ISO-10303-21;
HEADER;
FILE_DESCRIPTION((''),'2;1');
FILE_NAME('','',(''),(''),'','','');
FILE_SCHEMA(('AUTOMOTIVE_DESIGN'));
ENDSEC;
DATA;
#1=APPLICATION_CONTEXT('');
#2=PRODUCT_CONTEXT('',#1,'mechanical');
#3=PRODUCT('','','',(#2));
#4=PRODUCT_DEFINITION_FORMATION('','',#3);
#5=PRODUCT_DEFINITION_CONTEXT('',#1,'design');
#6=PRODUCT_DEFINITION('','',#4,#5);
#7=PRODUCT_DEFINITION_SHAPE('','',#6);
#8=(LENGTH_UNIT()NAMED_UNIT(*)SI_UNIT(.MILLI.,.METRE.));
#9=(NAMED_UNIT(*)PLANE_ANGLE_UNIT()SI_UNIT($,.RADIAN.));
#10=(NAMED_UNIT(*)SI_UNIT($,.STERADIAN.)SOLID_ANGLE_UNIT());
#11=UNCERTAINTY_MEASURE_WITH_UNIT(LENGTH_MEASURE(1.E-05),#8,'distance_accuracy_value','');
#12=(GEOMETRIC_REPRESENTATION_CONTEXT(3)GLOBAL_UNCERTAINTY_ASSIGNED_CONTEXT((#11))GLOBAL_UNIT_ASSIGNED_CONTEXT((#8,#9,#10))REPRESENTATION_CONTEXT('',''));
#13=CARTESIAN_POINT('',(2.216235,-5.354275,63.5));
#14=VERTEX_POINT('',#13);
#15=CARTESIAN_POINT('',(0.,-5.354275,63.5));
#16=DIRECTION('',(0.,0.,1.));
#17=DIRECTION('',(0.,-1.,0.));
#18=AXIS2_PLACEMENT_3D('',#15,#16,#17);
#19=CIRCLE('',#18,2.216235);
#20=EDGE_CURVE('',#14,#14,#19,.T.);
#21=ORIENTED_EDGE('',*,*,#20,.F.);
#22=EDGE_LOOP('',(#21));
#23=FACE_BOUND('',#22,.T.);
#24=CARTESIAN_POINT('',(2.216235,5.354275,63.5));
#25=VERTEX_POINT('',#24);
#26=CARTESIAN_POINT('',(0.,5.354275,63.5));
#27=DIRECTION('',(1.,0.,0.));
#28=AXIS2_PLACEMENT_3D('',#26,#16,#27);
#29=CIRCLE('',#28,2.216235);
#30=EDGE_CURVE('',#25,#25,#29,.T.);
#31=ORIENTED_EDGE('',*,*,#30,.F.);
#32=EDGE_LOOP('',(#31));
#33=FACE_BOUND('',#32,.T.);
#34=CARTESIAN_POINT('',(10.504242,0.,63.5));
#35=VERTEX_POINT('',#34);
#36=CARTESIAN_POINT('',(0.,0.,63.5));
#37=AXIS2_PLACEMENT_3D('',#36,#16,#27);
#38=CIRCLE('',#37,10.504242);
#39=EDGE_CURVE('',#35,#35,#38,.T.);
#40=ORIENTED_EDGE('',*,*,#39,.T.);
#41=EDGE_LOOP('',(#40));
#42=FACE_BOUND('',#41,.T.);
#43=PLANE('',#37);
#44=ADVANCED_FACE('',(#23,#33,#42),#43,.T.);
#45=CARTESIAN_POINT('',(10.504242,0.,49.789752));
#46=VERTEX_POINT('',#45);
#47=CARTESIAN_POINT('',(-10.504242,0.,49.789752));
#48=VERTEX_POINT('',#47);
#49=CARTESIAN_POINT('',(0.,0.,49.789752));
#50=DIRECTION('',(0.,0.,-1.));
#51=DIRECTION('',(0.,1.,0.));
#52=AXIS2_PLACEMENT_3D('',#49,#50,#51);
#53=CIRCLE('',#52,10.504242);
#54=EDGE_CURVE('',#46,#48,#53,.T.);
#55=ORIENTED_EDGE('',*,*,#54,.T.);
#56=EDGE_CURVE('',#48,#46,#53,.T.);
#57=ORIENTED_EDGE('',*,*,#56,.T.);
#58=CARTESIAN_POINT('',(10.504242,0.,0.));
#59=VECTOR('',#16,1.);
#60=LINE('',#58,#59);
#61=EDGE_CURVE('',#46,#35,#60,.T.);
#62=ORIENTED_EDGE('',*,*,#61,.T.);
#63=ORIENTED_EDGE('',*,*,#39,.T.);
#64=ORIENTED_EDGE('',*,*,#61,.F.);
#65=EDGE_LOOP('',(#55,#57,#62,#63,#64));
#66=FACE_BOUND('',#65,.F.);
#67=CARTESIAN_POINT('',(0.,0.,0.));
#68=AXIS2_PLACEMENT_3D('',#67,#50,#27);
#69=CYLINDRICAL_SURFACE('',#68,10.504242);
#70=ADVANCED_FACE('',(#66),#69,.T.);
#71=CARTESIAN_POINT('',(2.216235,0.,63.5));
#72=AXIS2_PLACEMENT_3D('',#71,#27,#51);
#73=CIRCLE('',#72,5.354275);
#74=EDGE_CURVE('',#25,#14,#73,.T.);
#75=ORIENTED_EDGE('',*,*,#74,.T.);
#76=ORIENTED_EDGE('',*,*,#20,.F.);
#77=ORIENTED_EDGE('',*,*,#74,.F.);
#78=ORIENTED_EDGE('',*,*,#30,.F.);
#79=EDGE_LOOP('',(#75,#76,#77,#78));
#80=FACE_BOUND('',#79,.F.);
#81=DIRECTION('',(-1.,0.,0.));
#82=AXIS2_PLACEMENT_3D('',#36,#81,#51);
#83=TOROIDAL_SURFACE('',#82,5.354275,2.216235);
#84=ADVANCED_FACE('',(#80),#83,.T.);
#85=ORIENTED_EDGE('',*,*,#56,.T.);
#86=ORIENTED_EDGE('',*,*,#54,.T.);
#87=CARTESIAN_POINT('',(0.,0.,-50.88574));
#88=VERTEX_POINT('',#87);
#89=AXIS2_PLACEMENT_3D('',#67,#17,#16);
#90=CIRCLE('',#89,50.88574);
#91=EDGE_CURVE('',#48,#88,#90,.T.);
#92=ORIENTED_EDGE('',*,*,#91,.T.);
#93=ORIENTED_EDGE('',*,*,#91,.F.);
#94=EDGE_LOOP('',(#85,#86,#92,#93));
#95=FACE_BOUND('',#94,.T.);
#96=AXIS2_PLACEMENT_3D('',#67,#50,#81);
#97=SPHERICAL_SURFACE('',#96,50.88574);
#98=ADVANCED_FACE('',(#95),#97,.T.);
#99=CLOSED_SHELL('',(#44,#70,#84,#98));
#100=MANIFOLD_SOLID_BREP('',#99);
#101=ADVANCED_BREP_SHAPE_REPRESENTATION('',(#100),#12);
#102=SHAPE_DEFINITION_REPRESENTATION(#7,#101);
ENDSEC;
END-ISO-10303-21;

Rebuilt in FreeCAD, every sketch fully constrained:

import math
import FreeCAD as App
import Part
import Sketcher
from FreeCAD import Vector
Q = App.Units.Quantity

doc = App.newDocument("Part")
body = doc.addObject("PartDesign::Body", "Body")

# Sketch on XZ plane
sketch1 = body.newObject("Sketcher::SketchObject", "Sketch")
sketch1.AttachmentSupport = (doc.getObject("XZ_Plane"), [""])
sketch1.MapMode = "FlatFace"
sketch1.addGeometry([
    Part.LineSegment(Vector(0, -51, 0), Vector(0, 51, 0)),
    Part.ArcOfCircle(Part.Circle(Vector(0, 0, 0), Vector(0, 0, 1), 51), math.radians(90), math.radians(270)),
], False)
sketch1.addConstraint([
    Sketcher.Constraint("Coincident", 0, 1, 1, 2),
    Sketcher.Constraint("Coincident", 1, 1, 0, 2),
    Sketcher.Constraint("Vertical", 0),
    Sketcher.Constraint("Coincident", 1, 3, -1, 1),
    Sketcher.Constraint("PointOnObject", 0, 1, -2),
    Sketcher.Constraint("Radius", 1, Q("50.88574 mm")),
])
revolution = body.newObject("PartDesign::Revolution", "Revolution")
revolution.Profile = sketch1
revolution.ReferenceAxis = (sketch1, ["V_Axis"])
revolution.Angle = 360

# Sketch on XY plane
sketch2 = body.newObject("Sketcher::SketchObject", "Sketch001")
sketch2.AttachmentSupport = (doc.getObject("XY_Plane"), [""])
sketch2.MapMode = "FlatFace"
sketch2.addGeometry(Part.Circle(Vector(0, 0, 0), Vector(0, 0, 1), 11), False)
sketch2.addConstraint([
    Sketcher.Constraint("Coincident", 0, 3, -1, 1),
    Sketcher.Constraint("Diameter", 0, Q("21.008484 mm")),
])
pad1 = body.newObject("PartDesign::Pad", "Pad")
pad1.Profile = sketch2
pad1.Length = Q("2.5 in")

# Sketch on XY plane
sketch3 = body.newObject("Sketcher::SketchObject", "Sketch002")
sketch3.AttachmentSupport = (doc.getObject("XY_Plane"), [""])
sketch3.MapMode = "FlatFace"
sketch3.AttachmentOffset = App.Placement(Vector(0, 0, 2.5 * 25.4), App.Rotation())
sketch3.addGeometry(Part.Circle(Vector(0, 5.4, 0), Vector(0, 0, 1), 2.2), False)
sketch3.addConstraint([
    Sketcher.Constraint("PointOnObject", 0, 3, -2),
    Sketcher.Constraint("Diameter", 0, Q("4.43247 mm")),
    Sketcher.Constraint("DistanceY", -1, 1, 0, 3, Q("5.354275 mm")),
])
revolution2 = body.newObject("PartDesign::Revolution", "Revolution001")
revolution2.Profile = sketch3
revolution2.ReferenceAxis = (sketch3, ["H_Axis"])
revolution2.Angle = 360

doc.recompute()
